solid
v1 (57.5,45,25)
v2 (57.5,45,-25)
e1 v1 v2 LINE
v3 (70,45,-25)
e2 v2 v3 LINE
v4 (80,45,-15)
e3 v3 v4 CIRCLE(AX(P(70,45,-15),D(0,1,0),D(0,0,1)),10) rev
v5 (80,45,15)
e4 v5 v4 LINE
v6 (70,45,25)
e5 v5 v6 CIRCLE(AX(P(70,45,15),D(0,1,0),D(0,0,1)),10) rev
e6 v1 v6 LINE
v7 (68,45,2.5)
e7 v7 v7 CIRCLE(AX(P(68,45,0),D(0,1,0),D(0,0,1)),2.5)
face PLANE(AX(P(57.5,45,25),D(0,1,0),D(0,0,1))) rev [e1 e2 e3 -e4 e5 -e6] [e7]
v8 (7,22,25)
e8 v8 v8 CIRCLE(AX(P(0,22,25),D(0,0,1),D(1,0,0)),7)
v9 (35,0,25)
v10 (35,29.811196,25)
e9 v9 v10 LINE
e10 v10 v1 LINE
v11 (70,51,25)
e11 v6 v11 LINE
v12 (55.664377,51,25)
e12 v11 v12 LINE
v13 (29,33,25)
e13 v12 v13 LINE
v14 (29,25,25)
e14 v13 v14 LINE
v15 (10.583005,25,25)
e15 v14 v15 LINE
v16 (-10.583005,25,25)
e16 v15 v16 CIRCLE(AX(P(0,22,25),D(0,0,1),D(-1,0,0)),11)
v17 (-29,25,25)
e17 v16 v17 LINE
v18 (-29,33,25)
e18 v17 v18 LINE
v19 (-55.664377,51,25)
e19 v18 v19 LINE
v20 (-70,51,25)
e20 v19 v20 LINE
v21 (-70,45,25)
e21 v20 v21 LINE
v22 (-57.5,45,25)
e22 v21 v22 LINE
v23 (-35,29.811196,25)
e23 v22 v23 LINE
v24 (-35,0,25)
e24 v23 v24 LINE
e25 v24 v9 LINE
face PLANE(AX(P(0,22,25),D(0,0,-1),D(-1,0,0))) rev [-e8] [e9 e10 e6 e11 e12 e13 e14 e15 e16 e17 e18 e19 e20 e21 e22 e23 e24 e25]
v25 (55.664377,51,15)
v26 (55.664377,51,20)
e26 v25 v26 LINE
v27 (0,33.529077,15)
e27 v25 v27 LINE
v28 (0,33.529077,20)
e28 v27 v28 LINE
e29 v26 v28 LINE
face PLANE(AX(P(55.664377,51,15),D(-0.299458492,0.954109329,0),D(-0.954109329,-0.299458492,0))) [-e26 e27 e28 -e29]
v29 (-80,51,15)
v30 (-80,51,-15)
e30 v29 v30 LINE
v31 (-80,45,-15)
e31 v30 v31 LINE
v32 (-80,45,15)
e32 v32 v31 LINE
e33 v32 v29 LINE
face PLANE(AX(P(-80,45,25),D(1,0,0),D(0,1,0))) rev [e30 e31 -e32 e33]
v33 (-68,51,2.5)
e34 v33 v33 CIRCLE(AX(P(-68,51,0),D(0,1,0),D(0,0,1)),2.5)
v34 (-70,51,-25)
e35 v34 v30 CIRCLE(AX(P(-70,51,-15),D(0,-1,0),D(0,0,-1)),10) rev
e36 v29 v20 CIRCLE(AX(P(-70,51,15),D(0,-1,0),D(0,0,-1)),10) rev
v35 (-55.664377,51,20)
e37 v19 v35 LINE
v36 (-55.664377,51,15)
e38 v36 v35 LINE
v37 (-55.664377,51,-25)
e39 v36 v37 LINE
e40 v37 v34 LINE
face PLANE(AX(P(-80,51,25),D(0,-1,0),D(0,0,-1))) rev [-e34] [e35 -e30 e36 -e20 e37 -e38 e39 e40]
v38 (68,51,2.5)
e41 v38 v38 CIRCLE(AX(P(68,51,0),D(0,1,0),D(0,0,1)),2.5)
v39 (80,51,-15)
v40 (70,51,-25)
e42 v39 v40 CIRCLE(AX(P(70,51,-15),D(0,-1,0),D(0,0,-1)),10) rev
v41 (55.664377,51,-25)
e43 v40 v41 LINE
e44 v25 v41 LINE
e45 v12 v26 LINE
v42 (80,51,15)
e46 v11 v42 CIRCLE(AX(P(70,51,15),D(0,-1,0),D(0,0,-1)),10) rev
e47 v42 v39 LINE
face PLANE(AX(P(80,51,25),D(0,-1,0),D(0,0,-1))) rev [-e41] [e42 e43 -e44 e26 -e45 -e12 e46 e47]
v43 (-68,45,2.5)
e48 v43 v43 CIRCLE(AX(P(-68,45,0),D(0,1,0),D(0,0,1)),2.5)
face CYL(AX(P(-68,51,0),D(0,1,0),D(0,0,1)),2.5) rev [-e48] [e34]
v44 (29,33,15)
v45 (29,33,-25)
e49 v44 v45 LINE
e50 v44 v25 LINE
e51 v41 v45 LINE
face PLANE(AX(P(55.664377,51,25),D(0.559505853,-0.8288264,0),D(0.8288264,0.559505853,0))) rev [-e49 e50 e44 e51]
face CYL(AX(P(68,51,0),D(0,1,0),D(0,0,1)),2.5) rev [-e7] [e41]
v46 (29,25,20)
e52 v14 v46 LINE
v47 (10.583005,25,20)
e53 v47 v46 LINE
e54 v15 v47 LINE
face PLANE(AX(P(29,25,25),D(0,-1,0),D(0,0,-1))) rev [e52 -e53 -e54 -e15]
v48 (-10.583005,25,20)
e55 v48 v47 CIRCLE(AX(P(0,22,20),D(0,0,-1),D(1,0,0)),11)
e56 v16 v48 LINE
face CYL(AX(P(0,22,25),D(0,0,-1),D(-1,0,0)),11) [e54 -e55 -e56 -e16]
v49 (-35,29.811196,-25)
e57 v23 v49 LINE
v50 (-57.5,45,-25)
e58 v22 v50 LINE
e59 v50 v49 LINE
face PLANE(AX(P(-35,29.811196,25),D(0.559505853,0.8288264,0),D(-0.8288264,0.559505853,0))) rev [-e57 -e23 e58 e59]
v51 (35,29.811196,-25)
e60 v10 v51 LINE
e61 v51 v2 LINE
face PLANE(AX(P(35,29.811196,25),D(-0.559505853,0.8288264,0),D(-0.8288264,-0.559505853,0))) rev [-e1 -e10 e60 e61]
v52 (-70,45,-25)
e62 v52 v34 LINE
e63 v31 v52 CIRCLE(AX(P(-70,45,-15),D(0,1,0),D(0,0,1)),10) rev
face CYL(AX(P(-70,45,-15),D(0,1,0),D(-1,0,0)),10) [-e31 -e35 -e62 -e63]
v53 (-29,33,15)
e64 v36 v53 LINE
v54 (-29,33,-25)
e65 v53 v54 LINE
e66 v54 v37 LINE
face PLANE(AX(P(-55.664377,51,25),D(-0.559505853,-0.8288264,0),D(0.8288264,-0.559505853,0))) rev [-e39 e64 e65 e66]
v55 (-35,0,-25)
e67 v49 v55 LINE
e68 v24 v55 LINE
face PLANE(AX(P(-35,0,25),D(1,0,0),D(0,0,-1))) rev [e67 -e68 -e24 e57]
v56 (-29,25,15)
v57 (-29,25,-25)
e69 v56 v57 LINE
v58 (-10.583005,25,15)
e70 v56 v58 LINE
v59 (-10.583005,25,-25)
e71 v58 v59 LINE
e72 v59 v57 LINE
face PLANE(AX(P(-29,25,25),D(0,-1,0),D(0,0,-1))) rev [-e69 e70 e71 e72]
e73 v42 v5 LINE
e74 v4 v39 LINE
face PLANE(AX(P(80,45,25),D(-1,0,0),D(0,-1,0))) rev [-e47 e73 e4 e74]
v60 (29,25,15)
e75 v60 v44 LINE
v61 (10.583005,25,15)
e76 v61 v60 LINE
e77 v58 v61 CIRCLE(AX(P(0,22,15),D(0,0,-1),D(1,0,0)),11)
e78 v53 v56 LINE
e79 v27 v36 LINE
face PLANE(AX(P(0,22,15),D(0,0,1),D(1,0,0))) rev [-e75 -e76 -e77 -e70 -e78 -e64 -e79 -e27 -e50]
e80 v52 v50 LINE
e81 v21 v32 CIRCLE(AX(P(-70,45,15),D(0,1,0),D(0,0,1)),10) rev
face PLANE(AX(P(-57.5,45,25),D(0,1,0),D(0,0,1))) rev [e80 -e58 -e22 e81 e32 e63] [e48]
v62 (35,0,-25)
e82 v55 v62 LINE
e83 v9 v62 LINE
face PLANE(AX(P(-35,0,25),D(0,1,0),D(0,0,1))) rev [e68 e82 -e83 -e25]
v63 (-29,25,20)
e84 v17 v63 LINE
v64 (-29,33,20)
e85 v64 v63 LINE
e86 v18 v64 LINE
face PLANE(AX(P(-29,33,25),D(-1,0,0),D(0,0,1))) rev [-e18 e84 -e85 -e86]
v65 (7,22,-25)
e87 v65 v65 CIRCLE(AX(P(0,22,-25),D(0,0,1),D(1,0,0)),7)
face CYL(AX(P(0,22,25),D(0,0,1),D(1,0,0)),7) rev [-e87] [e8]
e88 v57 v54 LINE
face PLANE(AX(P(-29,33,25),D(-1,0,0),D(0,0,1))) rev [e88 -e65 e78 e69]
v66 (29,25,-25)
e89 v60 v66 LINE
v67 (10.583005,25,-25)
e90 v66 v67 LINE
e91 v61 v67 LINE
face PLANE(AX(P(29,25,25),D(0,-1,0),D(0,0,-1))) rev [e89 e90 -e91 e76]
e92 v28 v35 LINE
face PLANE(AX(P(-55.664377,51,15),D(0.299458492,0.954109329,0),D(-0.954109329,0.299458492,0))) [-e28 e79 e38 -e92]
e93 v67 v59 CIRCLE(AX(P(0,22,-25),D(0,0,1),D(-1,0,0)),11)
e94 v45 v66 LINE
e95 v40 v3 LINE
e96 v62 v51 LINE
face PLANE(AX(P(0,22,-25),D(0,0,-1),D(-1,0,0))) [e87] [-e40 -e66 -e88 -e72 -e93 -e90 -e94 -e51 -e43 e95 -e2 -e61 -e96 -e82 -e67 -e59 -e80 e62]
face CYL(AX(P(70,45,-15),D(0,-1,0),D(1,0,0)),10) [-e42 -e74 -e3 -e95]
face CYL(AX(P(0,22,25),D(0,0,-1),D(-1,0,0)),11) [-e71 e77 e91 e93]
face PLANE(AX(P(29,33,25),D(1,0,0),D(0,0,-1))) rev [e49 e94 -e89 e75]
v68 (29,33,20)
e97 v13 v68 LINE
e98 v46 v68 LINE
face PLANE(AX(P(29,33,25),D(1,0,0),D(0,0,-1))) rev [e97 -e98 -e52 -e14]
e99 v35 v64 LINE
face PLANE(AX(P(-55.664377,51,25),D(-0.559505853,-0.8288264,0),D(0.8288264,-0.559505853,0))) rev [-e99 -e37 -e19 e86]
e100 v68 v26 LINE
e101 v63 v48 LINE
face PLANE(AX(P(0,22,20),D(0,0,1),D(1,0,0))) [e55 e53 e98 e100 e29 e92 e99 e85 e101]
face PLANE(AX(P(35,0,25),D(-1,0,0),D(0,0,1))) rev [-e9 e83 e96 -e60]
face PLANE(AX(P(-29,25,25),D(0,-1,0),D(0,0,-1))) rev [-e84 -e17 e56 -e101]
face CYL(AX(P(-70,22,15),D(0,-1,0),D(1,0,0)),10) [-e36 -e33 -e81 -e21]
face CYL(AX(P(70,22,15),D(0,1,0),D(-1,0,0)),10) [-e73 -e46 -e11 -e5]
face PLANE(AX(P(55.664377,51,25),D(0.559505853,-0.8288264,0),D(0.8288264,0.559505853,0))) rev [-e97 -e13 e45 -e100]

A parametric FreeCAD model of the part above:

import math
import FreeCAD as App
import Part
import Sketcher

V = App.Vector


def edges_at(feature, points):
    """Names of the edges that pass closest to the given points."""
    edges = feature.Shape.Edges
    near = lambda p: min(range(len(edges)), key=lambda i: edges[i].distToShape(Part.Vertex(*p))[0])
    return sorted({f"Edge{near(p) + 1}" for p in points})

doc = App.newDocument("Part")
body = doc.addObject("PartDesign::Body", "Body")

# Sketch on XY plane
sketch1 = body.newObject("Sketcher::SketchObject", "Sketch")
sketch1.AttachmentSupport = (doc.getObject("XY_Plane"), [""])
sketch1.MapMode = "FlatFace"
sketch1.addGeometry([
    Part.LineSegment(V(-35, 30, 0), V(-35, 0, 0)),  # 0
    Part.LineSegment(V(-35, 0, 0), V(35, 0, 0)),  # 1
    Part.LineSegment(V(35, 0, 0), V(35, 30, 0)),  # 2
    Part.LineSegment(V(35, 30, 0), V(58, 45, 0)),  # 3
    Part.LineSegment(V(58, 45, 0), V(80, 45, 0)),  # 4
    Part.LineSegment(V(80, 45, 0), V(80, 51, 0)),  # 5
    Part.LineSegment(V(80, 51, 0), V(56, 51, 0)),  # 6
    Part.LineSegment(V(56, 51, 0), V(29, 33, 0)),  # 7
    Part.LineSegment(V(29, 33, 0), V(29, 25, 0)),  # 8
    Part.LineSegment(V(29, 25, 0), V(11, 25, 0)),  # 9
    Part.ArcOfCircle(Part.Circle(V(0, 22, 0), V(0, 0, 1), 11), math.radians(16), math.radians(164)),  # 10
    Part.LineSegment(V(-11, 25, 0), V(-29, 25, 0)),  # 11
    Part.LineSegment(V(-29, 25, 0), V(-29, 33, 0)),  # 12
    Part.LineSegment(V(-29, 33, 0), V(-56, 51, 0)),  # 13
    Part.LineSegment(V(-56, 51, 0), V(-80, 51, 0)),  # 14
    Part.LineSegment(V(-80, 51, 0), V(-80, 45, 0)),  # 15
    Part.LineSegment(V(-80, 45, 0), V(-58, 45, 0)),  # 16
    Part.LineSegment(V(-58, 45, 0), V(-35, 30, 0)),  # 17
], False)
sketch1.addConstraint([
    Sketcher.Constraint("Coincident", 0, 2, 1, 1),
    Sketcher.Constraint("Coincident", 1, 2, 2, 1),
    Sketcher.Constraint("Coincident", 2, 2, 3, 1),
    Sketcher.Constraint("Coincident", 3, 2, 4, 1),
    Sketcher.Constraint("Coincident", 4, 2, 5, 1),
    Sketcher.Constraint("Coincident", 5, 2, 6, 1),
    Sketcher.Constraint("Coincident", 6, 2, 7, 1),
    Sketcher.Constraint("Coincident", 7, 2, 8, 1),
    Sketcher.Constraint("Coincident", 8, 2, 9, 1),
    Sketcher.Constraint("Coincident", 9, 2, 10, 1),
    Sketcher.Constraint("Coincident", 10, 2, 11, 1),
    Sketcher.Constraint("Coincident", 11, 2, 12, 1),
    Sketcher.Constraint("Coincident", 12, 2, 13, 1),
    Sketcher.Constraint("Coincident", 13, 2, 14, 1),
    Sketcher.Constraint("Coincident", 14, 2, 15, 1),
    Sketcher.Constraint("Coincident", 15, 2, 16, 1),
    Sketcher.Constraint("Coincident", 16, 2, 17, 1),
    Sketcher.Constraint("Coincident", 17, 2, 0, 1),
    Sketcher.Constraint("Vertical", 0),
    Sketcher.Constraint("Horizontal", 1),
    Sketcher.Constraint("Vertical", 2),
    Sketcher.Constraint("Horizontal", 4),
    Sketcher.Constraint("Vertical", 5),
    Sketcher.Constraint("Horizontal", 6),
    Sketcher.Constraint("Vertical", 8),
    Sketcher.Constraint("Horizontal", 9),
    Sketcher.Constraint("Horizontal", 11),
    Sketcher.Constraint("Vertical", 12),
    Sketcher.Constraint("Horizontal", 14),
    Sketcher.Constraint("Vertical", 15),
    Sketcher.Constraint("Horizontal", 16),
    Sketcher.Constraint("Symmetric", 0, 2, 1, 2, -1, 1),
    Sketcher.Constraint("Symmetric", 9, 2, 10, 2, -2),
    Sketcher.Constraint("Symmetric", 7, 2, 12, 2, -2),
    Sketcher.Constraint("Symmetric", 6, 2, 13, 2, -2),
    Sketcher.Constraint("Symmetric", 4, 2, 15, 2, -2),
    Sketcher.Constraint("Parallel", 3, 7),
    Sketcher.Constraint("Parallel", 13, 17),
    Sketcher.Constraint("Horizontal", 2, 2, 17, 2),
    Sketcher.Constraint("Radius", 10, 11.0),
    Sketcher.Constraint("DistanceX", 1, 1, 1, 2, 70.0),
    Sketcher.Constraint("DistanceY", 5, 1, 5, 2, 6.0),
    Sketcher.Constraint("DistanceY", 8, 2, 8, 1, 8.0),
    Sketcher.Constraint("DistanceX", 4, 1, 4, 2, 22.5),
    Sketcher.Constraint("DistanceY", -1, 1, 10, 3, 22.0),
    Sketcher.Constraint("DistanceY", -1, 1, 3, 2, 45.0),
    Sketcher.Constraint("DistanceX", -1, 1, 4, 2, 80.0),
    Sketcher.Constraint("DistanceX", -1, 1, 7, 2, 29.0),
    Sketcher.Constraint("DistanceY", -1, 1, 7, 2, 33.0),
    Sketcher.Constraint("Distance", 3, 27.146819),
])
pad1 = body.newObject("PartDesign::Pad", "Pad")
pad1.Profile = sketch1
pad1.Length = 50
pad1.Midplane = True

# Sketch on XY plane
sketch2 = body.newObject("Sketcher::SketchObject", "Sketch001")
sketch2.AttachmentSupport = (doc.getObject("XY_Plane"), [""])
sketch2.MapMode = "FlatFace"
sketch2.AttachmentOffset = App.Placement(V(0, 0, 20), App.Rotation())
sketch2.addGeometry([
    Part.LineSegment(V(29, 33, 0), V(56, 51, 0)),  # 0
    Part.LineSegment(V(56, 51, 0), V(0, 34, 0)),  # 1
    Part.LineSegment(V(0, 34, 0), V(-56, 51, 0)),  # 2
    Part.LineSegment(V(-56, 51, 0), V(-29, 33, 0)),  # 3
    Part.LineSegment(V(-29, 33, 0), V(-29, 25, 0)),  # 4
    Part.LineSegment(V(-29, 25, 0), V(-11, 25, 0)),  # 5
    Part.ArcOfCircle(Part.Circle(V(0, 22, 0), V(0, 0, 1), 11), math.radians(16), math.radians(164)),  # 6
    Part.LineSegment(V(11, 25, 0), V(29, 25, 0)),  # 7
    Part.LineSegment(V(29, 25, 0), V(29, 33, 0)),  # 8
], False)
sketch2.addConstraint([
    Sketcher.Constraint("Coincident", 0, 2, 1, 1),
    Sketcher.Constraint("Coincident", 1, 2, 2, 1),
    Sketcher.Constraint("Coincident", 2, 2, 3, 1),
    Sketcher.Constraint("Coincident", 3, 2, 4, 1),
    Sketcher.Constraint("Coincident", 4, 2, 5, 1),
    Sketcher.Constraint("Coincident", 5, 2, 6, 2),
    Sketcher.Constraint("Coincident", 6, 1, 7, 1),
    Sketcher.Constraint("Coincident", 7, 2, 8, 1),
    Sketcher.Constraint("Coincident", 8, 2, 0, 1),
    Sketcher.Constraint("Vertical", 4),
    Sketcher.Constraint("Horizontal", 5),
    Sketcher.Constraint("Horizontal", 7),
    Sketcher.Constraint("Vertical", 8),
    Sketcher.Constraint("Symmetric", 0, 2, 2, 2, -2),
    Sketcher.Constraint("Symmetric", 5, 2, 6, 1, -2),
    Sketcher.Constraint("Symmetric", 3, 2, 8, 2, -2),
    Sketcher.Constraint("PointOnObject", 1, 2, -2),
    Sketcher.Constraint("Radius", 6, 11.0),
    Sketcher.Constraint("DistanceY", 4, 2, 4, 1, 8.0),
    Sketcher.Constraint("DistanceY", -1, 1, 6, 3, 22.0),
    Sketcher.Constraint("DistanceY", -1, 1, 0, 2, 51.0),
    Sketcher.Constraint("DistanceX", 3, 2, -1, 1, 29.0),
    Sketcher.Constraint("DistanceY", -1, 1, 3, 2, 33.0),
    Sketcher.Constraint("Distance", 0, 32.171245),
    Sketcher.Constraint("Distance", 1, 58.341718),
])
pad2 = body.newObject("PartDesign::Pad", "Pad001")
pad2.Profile = sketch2
pad2.Length = 5
pad2.Reversed = True

# Sketch on XY plane
sketch3 = body.newObject("Sketcher::SketchObject", "Sketch002")
sketch3.AttachmentSupport = (doc.getObject("XY_Plane"), [""])
sketch3.MapMode = "FlatFace"
sketch3.AttachmentOffset = App.Placement(V(0, 0, 25), App.Rotation())
sketch3.addGeometry(Part.Circle(V(0, 22, 0), V(0, 0, 1), 7), False)
sketch3.addConstraint([
    Sketcher.Constraint("PointOnObject", 0, 3, -2),
    Sketcher.Constraint("Diameter", 0, 14.0),
    Sketcher.Constraint("DistanceY", -1, 1, 0, 3, 22.0),
])
doc.recompute()
hole = body.newObject("PartDesign::Hole", "Hole")
hole.Profile = sketch3
hole.ThreadType = "None"
hole.Diameter = 14
hole.DepthType = "ThroughAll"

# Sketch on XZ plane
sketch4 = body.newObject("Sketcher::SketchObject", "Sketch003")
sketch4.AttachmentSupport = (doc.getObject("XZ_Plane"), [""])
sketch4.MapMode = "FlatFace"
sketch4.AttachmentOffset = App.Placement(V(0, 0, -51), App.Rotation())
sketch4.addGeometry(Part.Circle(V(68, 0, 0), V(0, 0, 1), 2.5), False)
sketch4.addConstraint([
    Sketcher.Constraint("PointOnObject", 0, 3, -1),
    Sketcher.Constraint("Diameter", 0, 5.0),
    Sketcher.Constraint("DistanceX", -1, 1, 0, 3, 68.0),
])
doc.recompute()
hole2 = body.newObject("PartDesign::Hole", "Hole001")
hole2.Profile = sketch4
hole2.ThreadType = "None"
hole2.Diameter = 5
hole2.DepthType = "ThroughAll"
hole2.Reversed = True
doc.recompute()

mirrored = body.newObject("PartDesign::Mirrored", "Mirrored")
mirrored.Originals = [hole2]
mirrored.MirrorPlane = (doc.getObject("YZ_Plane"), [""])
body.Tip = mirrored
doc.recompute()

fillet = body.newObject("PartDesign::Fillet", "Fillet")
fillet.Base = (mirrored, edges_at(mirrored, [
    (-80, 48, -25),
    (80, 48, 25),
    (80, 48, -25),
    (-80, 48, 25),
]))
fillet.Radius = 10

doc.recompute()
